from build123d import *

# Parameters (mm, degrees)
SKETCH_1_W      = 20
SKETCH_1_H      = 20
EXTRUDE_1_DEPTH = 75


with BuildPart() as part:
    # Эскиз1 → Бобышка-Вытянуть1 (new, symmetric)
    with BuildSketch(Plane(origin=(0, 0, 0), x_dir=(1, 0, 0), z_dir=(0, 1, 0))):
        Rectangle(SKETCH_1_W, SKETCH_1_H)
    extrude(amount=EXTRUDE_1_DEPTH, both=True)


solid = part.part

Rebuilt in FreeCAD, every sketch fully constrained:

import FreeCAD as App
import Part
import Sketcher


def add_polygon(sketch, points):
    """Adds a closed chain of lines whose ends are joined by coincident constraints."""
    first, n = sketch.GeometryCount, len(points)
    for a, b in zip(points, points[1:] + points[:1]):
        sketch.addGeometry(Part.LineSegment(App.Vector(*a, 0), App.Vector(*b, 0)), False)
    for i in range(n):
        sketch.addConstraint(Sketcher.Constraint("Coincident", first + i, 2, first + (i + 1) % n, 1))

doc = App.newDocument("Part")
body = doc.addObject("PartDesign::Body", "Body")

sketch1 = body.newObject("Sketcher::SketchObject", "Sketch")
sketch1.AttachmentSupport = (doc.getObject("XZ_Plane"), [""])
sketch1.MapMode = "FlatFace"
add_polygon(sketch1, [(-10, -10), (-10, 10), (10, 10), (10, -10)])
sketch1.addConstraint(Sketcher.Constraint("Vertical", 0))
sketch1.addConstraint(Sketcher.Constraint("Horizontal", 1))
sketch1.addConstraint(Sketcher.Constraint("Vertical", 2))
sketch1.addConstraint(Sketcher.Constraint("Horizontal", 3))
sketch1.addConstraint(Sketcher.Constraint("Symmetric", 0, 2, 2, 2, -1, 1))
sketch1.addConstraint(Sketcher.Constraint("Equal", 3, 0))
sketch1.addConstraint(Sketcher.Constraint("DistanceX", 1, 1, 1, 2, 20.0))
pad1 = body.newObject("PartDesign::Pad", "Pad")
pad1.Profile = sketch1
pad1.Length = 150
pad1.Midplane = True

doc.recompute()
